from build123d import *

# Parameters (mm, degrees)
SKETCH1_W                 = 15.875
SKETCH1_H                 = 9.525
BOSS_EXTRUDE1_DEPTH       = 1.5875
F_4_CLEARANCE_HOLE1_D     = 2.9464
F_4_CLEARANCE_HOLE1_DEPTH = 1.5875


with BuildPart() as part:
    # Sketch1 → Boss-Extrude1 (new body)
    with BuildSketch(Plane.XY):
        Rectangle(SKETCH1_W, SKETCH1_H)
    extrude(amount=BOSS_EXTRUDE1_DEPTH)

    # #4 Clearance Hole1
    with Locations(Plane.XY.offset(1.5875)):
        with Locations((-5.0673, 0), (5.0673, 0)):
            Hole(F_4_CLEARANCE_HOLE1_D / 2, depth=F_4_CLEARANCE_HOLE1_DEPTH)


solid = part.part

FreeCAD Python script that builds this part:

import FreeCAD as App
import Part
import Sketcher
from FreeCAD import Vector
Q = App.Units.Quantity


def add_polygon(sketch, points):
    """Adds a closed chain of lines whose ends are joined by coincident constraints."""
    first, n = sketch.GeometryCount, len(points)
    for a, b in zip(points, points[1:] + points[:1]):
        sketch.addGeometry(Part.LineSegment(App.Vector(*a, 0), App.Vector(*b, 0)), False)
    for i in range(n):
        sketch.addConstraint(Sketcher.Constraint("Coincident", first + i, 2, first + (i + 1) % n, 1))

doc = App.newDocument("Part")
body = doc.addObject("PartDesign::Body", "Body")

# Sketch on XY plane
sketch1 = body.newObject("Sketcher::SketchObject", "Sketch")
sketch1.AttachmentSupport = (doc.getObject("XY_Plane"), [""])
sketch1.MapMode = "FlatFace"
add_polygon(sketch1, [(-8, 5), (-8, -5), (8, -5), (8, 5)])  # lines 0-3
sketch1.addConstraint([
    Sketcher.Constraint("Vertical", 0),
    Sketcher.Constraint("Horizontal", 1),
    Sketcher.Constraint("Vertical", 2),
    Sketcher.Constraint("Horizontal", 3),
    Sketcher.Constraint("Symmetric", 0, 2, 2, 2, -1, 1),
    Sketcher.Constraint("DistanceX", 1, 1, 1, 2, Q("0.625 in")),
    Sketcher.Constraint("DistanceY", 0, 2, 0, 1, Q("0.375 in")),
])
pad1 = body.newObject("PartDesign::Pad", "Pad")
pad1.Profile = sketch1
pad1.Length = Q("0.0625 in")

# Sketch on XY plane
sketch2 = body.newObject("Sketcher::SketchObject", "Sketch001")
sketch2.AttachmentSupport = (doc.getObject("XY_Plane"), [""])
sketch2.MapMode = "FlatFace"
sketch2.AttachmentOffset = App.Placement(Vector(0, 0, 0.0625 * 25.4), App.Rotation())
sketch2.addGeometry([
    Part.Circle(Vector(-5.1, 0, 0), Vector(0, 0, 1), 1.5),
    Part.Circle(Vector(5.1, 0, 0), Vector(0, 0, 1), 1.5),
], False)
sketch2.addConstraint([
    Sketcher.Constraint("Equal", 0, 1),
    Sketcher.Constraint("Symmetric", 0, 3, 1, 3, -1, 1),
    Sketcher.Constraint("PointOnObject", 0, 3, -1),
    Sketcher.Constraint("Diameter", 0, Q("0.116 in")),
    Sketcher.Constraint("DistanceX", 0, 3, 1, 3, Q("0.399 in")),
])
doc.recompute()
hole = body.newObject("PartDesign::Hole", "Hole")
hole.Profile = sketch2
hole.ThreadType = "None"
hole.Diameter = Q("0.116 in")
hole.DepthType = "Dimension"
hole.Depth = Q("0.0625 in")
hole.DrillPoint = "Flat"

doc.recompute()
